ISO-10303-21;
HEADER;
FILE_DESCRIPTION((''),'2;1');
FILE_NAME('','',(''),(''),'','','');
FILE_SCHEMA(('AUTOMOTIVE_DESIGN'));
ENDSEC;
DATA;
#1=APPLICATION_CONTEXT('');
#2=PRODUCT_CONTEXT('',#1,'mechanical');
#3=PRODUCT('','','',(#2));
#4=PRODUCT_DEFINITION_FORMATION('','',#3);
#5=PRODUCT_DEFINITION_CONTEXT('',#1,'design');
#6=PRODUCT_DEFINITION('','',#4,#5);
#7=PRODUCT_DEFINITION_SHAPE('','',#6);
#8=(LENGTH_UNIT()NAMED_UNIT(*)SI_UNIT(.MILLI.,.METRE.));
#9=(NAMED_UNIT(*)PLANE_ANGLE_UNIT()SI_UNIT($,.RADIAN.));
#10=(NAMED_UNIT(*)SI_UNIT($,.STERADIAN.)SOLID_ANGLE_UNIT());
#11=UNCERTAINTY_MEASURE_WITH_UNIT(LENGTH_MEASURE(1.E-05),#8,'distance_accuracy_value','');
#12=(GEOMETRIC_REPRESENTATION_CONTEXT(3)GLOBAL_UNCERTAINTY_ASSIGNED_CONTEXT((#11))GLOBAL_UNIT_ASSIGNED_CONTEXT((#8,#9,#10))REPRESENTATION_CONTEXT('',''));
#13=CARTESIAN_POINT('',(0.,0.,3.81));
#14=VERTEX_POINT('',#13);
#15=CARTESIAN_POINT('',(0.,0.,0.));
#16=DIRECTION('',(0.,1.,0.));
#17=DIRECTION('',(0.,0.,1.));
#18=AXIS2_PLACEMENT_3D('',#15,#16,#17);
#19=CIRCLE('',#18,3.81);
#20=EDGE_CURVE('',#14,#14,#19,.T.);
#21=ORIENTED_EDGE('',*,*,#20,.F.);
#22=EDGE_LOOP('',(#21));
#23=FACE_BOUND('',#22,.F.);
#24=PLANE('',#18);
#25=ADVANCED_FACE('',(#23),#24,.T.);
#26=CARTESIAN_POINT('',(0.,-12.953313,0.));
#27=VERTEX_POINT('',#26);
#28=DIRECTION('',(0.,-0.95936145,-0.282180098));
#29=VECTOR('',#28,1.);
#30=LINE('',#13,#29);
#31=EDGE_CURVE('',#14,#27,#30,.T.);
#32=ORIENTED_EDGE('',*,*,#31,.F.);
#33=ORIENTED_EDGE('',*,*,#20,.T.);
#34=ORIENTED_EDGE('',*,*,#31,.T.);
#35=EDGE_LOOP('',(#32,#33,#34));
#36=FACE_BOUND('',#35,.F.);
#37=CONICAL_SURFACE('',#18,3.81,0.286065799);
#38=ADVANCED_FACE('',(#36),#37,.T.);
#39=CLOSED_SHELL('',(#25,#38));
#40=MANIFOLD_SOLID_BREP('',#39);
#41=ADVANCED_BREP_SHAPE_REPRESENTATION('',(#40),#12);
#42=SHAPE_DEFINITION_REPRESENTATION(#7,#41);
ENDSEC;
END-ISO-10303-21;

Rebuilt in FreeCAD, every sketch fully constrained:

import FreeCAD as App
import Part
import Sketcher
from FreeCAD import Vector
Q = App.Units.Quantity

doc = App.newDocument("Part")
body = doc.addObject("PartDesign::Body", "Body")

# Sketch on YZ plane
sketch1 = doc.addObject("Sketcher::SketchObject", "Sketch")
body.addObject(sketch1)
sketch1.AttachmentSupport = (doc.YZ_Plane, [""])
sketch1.MapMode = "FlatFace"
sketch1.addGeometry(Part.LineSegment(Vector(-12.953313, 0, 0), Vector(0, 0, 0)), False)
sketch1.addGeometry(Part.LineSegment(Vector(0, 0, 0), Vector(0, 3.81, 0)), False)
sketch1.addGeometry(Part.LineSegment(Vector(0, 3.81, 0), Vector(-12.953313, 0, 0)), False)
sketch1.addConstraint(Sketcher.Constraint("Coincident", 0, 2, 1, 1))
sketch1.addConstraint(Sketcher.Constraint("Coincident", 1, 2, 2, 1))
sketch1.addConstraint(Sketcher.Constraint("Coincident", 2, 2, 0, 1))
sketch1.addConstraint(Sketcher.Constraint("Horizontal", 0))
sketch1.addConstraint(Sketcher.Constraint("Vertical", 1))
sketch1.addConstraint(Sketcher.Constraint("Coincident", 0, 2, -1, 1))
sketch1.addConstraint(Sketcher.Constraint("DistanceY", 1, 1, 1, 2, Q("0.15 in")))
sketch1.addConstraint(Sketcher.Constraint("DistanceX", 0, 1, 0, 2, 12.953313))
revolution = doc.addObject("PartDesign::Revolution", "Revolution")
body.addObject(revolution)
revolution.Profile = sketch1
revolution.ReferenceAxis = (sketch1, ["H_Axis"])
revolution.Angle = 360

doc.recompute()
